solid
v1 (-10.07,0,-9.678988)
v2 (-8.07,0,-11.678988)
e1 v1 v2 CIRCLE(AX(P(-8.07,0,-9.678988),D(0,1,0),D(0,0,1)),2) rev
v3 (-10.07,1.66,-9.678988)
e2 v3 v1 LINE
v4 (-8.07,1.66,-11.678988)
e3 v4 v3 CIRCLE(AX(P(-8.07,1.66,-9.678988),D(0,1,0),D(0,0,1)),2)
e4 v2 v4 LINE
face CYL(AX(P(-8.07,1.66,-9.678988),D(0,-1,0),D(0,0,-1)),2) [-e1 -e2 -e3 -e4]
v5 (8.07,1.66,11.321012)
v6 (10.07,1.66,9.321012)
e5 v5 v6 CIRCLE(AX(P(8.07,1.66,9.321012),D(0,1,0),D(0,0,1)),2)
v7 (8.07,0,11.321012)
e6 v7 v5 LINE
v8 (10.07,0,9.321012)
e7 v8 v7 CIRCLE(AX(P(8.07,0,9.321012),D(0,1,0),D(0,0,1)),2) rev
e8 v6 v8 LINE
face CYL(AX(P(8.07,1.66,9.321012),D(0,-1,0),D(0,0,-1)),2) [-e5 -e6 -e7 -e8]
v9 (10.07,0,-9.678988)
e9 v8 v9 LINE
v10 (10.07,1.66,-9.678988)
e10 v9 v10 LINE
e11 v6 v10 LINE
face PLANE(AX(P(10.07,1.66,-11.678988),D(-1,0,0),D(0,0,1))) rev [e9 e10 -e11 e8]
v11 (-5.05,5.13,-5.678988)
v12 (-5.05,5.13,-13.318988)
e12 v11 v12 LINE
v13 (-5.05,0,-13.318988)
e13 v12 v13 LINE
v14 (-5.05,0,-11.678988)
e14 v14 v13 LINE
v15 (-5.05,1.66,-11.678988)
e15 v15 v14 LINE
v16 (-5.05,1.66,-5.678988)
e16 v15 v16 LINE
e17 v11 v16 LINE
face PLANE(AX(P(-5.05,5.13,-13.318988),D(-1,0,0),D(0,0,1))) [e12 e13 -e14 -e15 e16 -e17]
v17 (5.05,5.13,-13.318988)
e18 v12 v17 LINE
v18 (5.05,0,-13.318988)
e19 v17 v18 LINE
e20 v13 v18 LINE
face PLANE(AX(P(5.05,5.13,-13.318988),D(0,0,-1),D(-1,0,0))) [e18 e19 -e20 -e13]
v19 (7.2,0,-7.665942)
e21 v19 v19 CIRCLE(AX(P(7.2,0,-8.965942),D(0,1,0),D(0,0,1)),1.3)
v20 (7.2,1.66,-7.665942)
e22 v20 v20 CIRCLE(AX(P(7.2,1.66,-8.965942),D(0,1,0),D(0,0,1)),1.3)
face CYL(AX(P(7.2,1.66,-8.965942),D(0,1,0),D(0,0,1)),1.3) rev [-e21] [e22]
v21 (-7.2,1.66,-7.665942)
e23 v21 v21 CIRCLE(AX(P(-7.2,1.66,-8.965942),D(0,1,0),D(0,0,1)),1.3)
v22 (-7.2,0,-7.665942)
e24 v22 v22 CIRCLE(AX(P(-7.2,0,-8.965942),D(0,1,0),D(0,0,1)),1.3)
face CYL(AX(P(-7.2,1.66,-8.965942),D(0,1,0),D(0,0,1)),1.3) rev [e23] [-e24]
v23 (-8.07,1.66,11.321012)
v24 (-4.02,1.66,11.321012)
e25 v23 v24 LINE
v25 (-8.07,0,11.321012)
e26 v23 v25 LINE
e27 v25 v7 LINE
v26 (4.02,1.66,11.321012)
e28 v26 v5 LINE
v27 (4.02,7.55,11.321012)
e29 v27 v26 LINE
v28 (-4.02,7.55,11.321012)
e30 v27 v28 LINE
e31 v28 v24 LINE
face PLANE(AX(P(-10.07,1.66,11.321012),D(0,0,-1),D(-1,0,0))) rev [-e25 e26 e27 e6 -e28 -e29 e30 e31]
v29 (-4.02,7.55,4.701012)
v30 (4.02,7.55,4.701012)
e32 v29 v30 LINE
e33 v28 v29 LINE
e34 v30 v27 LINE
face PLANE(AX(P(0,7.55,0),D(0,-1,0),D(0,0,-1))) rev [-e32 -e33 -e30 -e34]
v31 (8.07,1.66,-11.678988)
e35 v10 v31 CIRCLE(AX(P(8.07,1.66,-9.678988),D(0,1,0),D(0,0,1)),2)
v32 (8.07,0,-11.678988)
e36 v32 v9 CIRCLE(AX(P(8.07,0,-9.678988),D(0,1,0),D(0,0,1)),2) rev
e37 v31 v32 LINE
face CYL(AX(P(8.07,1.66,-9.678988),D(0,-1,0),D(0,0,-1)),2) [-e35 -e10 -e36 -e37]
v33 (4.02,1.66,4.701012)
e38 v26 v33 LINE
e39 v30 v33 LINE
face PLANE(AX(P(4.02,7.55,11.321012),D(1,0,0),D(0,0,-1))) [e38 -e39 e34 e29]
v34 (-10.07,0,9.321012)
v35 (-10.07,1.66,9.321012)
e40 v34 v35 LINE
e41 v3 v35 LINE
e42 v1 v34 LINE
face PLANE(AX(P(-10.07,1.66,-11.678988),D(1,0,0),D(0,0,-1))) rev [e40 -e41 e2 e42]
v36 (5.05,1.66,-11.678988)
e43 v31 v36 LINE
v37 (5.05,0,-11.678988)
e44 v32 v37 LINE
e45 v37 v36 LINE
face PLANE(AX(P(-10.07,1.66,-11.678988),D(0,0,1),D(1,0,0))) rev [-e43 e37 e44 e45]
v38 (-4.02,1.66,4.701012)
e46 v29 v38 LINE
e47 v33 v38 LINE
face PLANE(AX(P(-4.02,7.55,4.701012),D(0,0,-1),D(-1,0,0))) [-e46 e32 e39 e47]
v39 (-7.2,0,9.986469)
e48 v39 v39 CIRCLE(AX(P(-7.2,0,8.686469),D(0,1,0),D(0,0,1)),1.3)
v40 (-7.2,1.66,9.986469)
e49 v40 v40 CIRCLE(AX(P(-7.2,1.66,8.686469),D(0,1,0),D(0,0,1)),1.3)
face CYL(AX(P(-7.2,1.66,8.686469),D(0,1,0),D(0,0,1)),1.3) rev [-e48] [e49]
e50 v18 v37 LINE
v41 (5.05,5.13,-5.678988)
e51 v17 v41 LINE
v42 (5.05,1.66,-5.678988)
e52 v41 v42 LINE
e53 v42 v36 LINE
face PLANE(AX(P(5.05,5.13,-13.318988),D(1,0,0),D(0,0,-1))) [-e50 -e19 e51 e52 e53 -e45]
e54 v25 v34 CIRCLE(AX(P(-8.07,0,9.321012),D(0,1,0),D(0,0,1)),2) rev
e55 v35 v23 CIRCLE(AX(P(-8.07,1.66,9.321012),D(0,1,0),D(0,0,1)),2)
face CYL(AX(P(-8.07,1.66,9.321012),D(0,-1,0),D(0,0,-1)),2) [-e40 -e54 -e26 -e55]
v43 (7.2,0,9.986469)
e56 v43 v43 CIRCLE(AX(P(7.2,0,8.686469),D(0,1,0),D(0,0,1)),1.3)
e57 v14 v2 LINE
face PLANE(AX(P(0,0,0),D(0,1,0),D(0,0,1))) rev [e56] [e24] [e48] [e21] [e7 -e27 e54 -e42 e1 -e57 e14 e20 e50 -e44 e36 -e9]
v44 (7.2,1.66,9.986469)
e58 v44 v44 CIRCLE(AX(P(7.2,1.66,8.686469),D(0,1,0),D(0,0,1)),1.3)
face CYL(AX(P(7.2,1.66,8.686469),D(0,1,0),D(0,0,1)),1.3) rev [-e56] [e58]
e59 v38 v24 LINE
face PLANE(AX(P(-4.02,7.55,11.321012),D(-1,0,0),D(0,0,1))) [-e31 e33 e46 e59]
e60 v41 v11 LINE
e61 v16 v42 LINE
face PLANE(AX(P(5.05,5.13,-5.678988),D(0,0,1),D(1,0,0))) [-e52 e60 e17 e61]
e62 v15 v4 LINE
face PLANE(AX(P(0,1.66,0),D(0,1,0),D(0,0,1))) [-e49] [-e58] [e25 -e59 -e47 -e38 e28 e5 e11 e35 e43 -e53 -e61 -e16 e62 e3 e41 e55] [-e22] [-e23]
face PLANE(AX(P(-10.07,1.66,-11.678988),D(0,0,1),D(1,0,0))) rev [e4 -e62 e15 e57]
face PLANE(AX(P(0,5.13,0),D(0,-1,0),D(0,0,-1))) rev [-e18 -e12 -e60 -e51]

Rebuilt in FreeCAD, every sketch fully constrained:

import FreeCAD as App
import Part
import Sketcher

V = App.Vector
Q = App.Units.Quantity


def edges_at(feature, points):
    """Names of the edges that pass closest to the given points."""
    edges = feature.Shape.Edges
    near = lambda p: min(range(len(edges)), key=lambda i: edges[i].distToShape(Part.Vertex(*p))[0])
    return sorted({f"Edge{near(p) + 1}" for p in points})

doc = App.newDocument("Part")
body = doc.addObject("PartDesign::Body", "Body")

sketch1 = body.newObject("Sketcher::SketchObject", "Sketch")
sketch1.AttachmentSupport = (doc.getObject("XZ_Plane"), [""])
sketch1.MapMode = "FlatFace"
sketch1.addGeometry(Part.LineSegment(V(-10, -12, 0), V(-10, 11, 0)), False)
sketch1.addGeometry(Part.LineSegment(V(-10, 11, 0), V(10, 11, 0)), False)
sketch1.addGeometry(Part.LineSegment(V(10, 11, 0), V(10, -12, 0)), False)
sketch1.addGeometry(Part.LineSegment(V(10, -12, 0), V(-10, -12, 0)), False)
sketch1.addConstraint(Sketcher.Constraint("Coincident", 0, 2, 1, 1))
sketch1.addConstraint(Sketcher.Constraint("Coincident", 1, 2, 2, 1))
sketch1.addConstraint(Sketcher.Constraint("Coincident", 2, 2, 3, 1))
sketch1.addConstraint(Sketcher.Constraint("Coincident", 3, 2, 0, 1))
sketch1.addConstraint(Sketcher.Constraint("Vertical", 0))
sketch1.addConstraint(Sketcher.Constraint("Horizontal", 1))
sketch1.addConstraint(Sketcher.Constraint("Vertical", 2))
sketch1.addConstraint(Sketcher.Constraint("Horizontal", 3))
sketch1.addConstraint(Sketcher.Constraint("DistanceY", 0, 1, 0, 2, Q("23 mm")))
sketch1.addConstraint(Sketcher.Constraint("DistanceX", 1, 1, 1, 2, Q("20.14 mm")))
sketch1.addConstraint(Sketcher.Constraint("DistanceX", 0, 2, -1, 1, Q("10.07 mm")))
sketch1.addConstraint(Sketcher.Constraint("DistanceY", -1, 1, 0, 2, Q("11.321012 mm")))
pad1 = body.newObject("PartDesign::Pad", "Pad")
pad1.Profile = sketch1
pad1.Length = 1.66
pad1.Reversed = True

sketch2 = body.newObject("Sketcher::SketchObject", "Sketch001")
sketch2.AttachmentSupport = (doc.getObject("XZ_Plane"), [""])
sketch2.MapMode = "FlatFace"
sketch2.addGeometry(Part.LineSegment(V(-4, 11, 0), V(-4, 5, 0)), False)
sketch2.addGeometry(Part.LineSegment(V(-4, 5, 0), V(4, 5, 0)), False)
sketch2.addGeometry(Part.LineSegment(V(4, 5, 0), V(4, 11, 0)), False)
sketch2.addGeometry(Part.LineSegment(V(4, 11, 0), V(-4, 11, 0)), False)
sketch2.addConstraint(Sketcher.Constraint("Coincident", 0, 2, 1, 1))
sketch2.addConstraint(Sketcher.Constraint("Coincident", 1, 2, 2, 1))
sketch2.addConstraint(Sketcher.Constraint("Coincident", 2, 2, 3, 1))
sketch2.addConstraint(Sketcher.Constraint("Coincident", 3, 2, 0, 1))
sketch2.addConstraint(Sketcher.Constraint("Vertical", 0))
sketch2.addConstraint(Sketcher.Constraint("Horizontal", 1))
sketch2.addConstraint(Sketcher.Constraint("Vertical", 2))
sketch2.addConstraint(Sketcher.Constraint("Horizontal", 3))
sketch2.addConstraint(Sketcher.Constraint("DistanceX", 1, 1, 1, 2, Q("8.04 mm")))
sketch2.addConstraint(Sketcher.Constraint("DistanceY", 0, 2, 0, 1, Q("6.62 mm")))
sketch2.addConstraint(Sketcher.Constraint("DistanceX", 0, 2, -1, 1, Q("4.02 mm")))
sketch2.addConstraint(Sketcher.Constraint("DistanceY", -1, 1, 0, 2, Q("4.701012 mm")))
pad2 = body.newObject("PartDesign::Pad", "Pad001")
pad2.Profile = sketch2
pad2.Length = 7.55
pad2.Reversed = True

sketch3 = body.newObject("Sketcher::SketchObject", "Sketch002")
sketch3.AttachmentSupport = (doc.getObject("XZ_Plane"), [""])
sketch3.MapMode = "FlatFace"
sketch3.addGeometry(Part.LineSegment(V(-5, -6, 0), V(-5, -13, 0)), False)
sketch3.addGeometry(Part.LineSegment(V(-5, -13, 0), V(5, -13, 0)), False)
sketch3.addGeometry(Part.LineSegment(V(5, -13, 0), V(5, -6, 0)), False)
sketch3.addGeometry(Part.LineSegment(V(5, -6, 0), V(-5, -6, 0)), False)
sketch3.addConstraint(Sketcher.Constraint("Coincident", 0, 2, 1, 1))
sketch3.addConstraint(Sketcher.Constraint("Coincident", 1, 2, 2, 1))
sketch3.addConstraint(Sketcher.Constraint("Coincident", 2, 2, 3, 1))
sketch3.addConstraint(Sketcher.Constraint("Coincident", 3, 2, 0, 1))
sketch3.addConstraint(Sketcher.Constraint("Vertical", 0))
sketch3.addConstraint(Sketcher.Constraint("Horizontal", 1))
sketch3.addConstraint(Sketcher.Constraint("Vertical", 2))
sketch3.addConstraint(Sketcher.Constraint("Horizontal", 3))
sketch3.addConstraint(Sketcher.Constraint("DistanceX", 1, 1, 1, 2, Q("10.1 mm")))
sketch3.addConstraint(Sketcher.Constraint("DistanceY", 0, 2, 0, 1, Q("7.64 mm")))
sketch3.addConstraint(Sketcher.Constraint("DistanceX", 0, 2, -1, 1, Q("5.05 mm")))
sketch3.addConstraint(Sketcher.Constraint("DistanceY", 0, 2, -1, 1, Q("13.318988 mm")))
pad3 = body.newObject("PartDesign::Pad", "Pad002")
pad3.Profile = sketch3
pad3.Length = 5.13
pad3.Reversed = True
doc.recompute()

fillet = body.newObject("PartDesign::Fillet", "Fillet")
fillet.Base = (pad3, edges_at(pad3, [
    (-10.07, 0.83, -11.679),
    (10.07, 0.83, -11.679),
    (10.07, 0.83, 11.321),
    (-10.07, 0.83, 11.321),
]))
fillet.Radius = 2

sketch4 = body.newObject("Sketcher::SketchObject", "Sketch003")
sketch4.AttachmentSupport = (doc.getObject("XZ_Plane"), [""])
sketch4.MapMode = "FlatFace"
sketch4.AttachmentOffset = App.Placement(V(0, 0, -1.66), App.Rotation())
sketch4.addGeometry(Part.Circle(V(-7.2, -9, 0), V(0, 0, 1), 1.3), False)
sketch4.addGeometry(Part.Circle(V(7.2, -9, 0), V(0, 0, 1), 1.3), False)
sketch4.addGeometry(Part.Circle(V(7.2, 8.7, 0), V(0, 0, 1), 1.3), False)
sketch4.addGeometry(Part.Circle(V(-7.2, 8.7, 0), V(0, 0, 1), 1.3), False)
sketch4.addConstraint(Sketcher.Constraint("Equal", 0, 1))
sketch4.addConstraint(Sketcher.Constraint("Equal", 1, 2))
sketch4.addConstraint(Sketcher.Constraint("Equal", 2, 3))
sketch4.addConstraint(Sketcher.Constraint("Symmetric", 0, 3, 1, 3, -2))
sketch4.addConstraint(Sketcher.Constraint("Symmetric", 2, 3, 3, 3, -2))
sketch4.addConstraint(Sketcher.Constraint("Vertical", 1, 3, 2, 3))
sketch4.addConstraint(Sketcher.Constraint("Diameter", 0, Q("2.6 mm")))
sketch4.addConstraint(Sketcher.Constraint("DistanceX", 0, 3, -1, 1, Q("7.2 mm")))
sketch4.addConstraint(Sketcher.Constraint("DistanceY", -1, 1, 2, 3, Q("8.686469 mm")))
sketch4.addConstraint(Sketcher.Constraint("DistanceY", 1, 3, 2, 3, Q("17.652411 mm")))
doc.recompute()
hole = body.newObject("PartDesign::Hole", "Hole")
hole.Profile = sketch4
hole.ThreadType = "None"
hole.Diameter = 2.6
hole.DepthType = "ThroughAll"
hole.Reversed = True

doc.recompute()
